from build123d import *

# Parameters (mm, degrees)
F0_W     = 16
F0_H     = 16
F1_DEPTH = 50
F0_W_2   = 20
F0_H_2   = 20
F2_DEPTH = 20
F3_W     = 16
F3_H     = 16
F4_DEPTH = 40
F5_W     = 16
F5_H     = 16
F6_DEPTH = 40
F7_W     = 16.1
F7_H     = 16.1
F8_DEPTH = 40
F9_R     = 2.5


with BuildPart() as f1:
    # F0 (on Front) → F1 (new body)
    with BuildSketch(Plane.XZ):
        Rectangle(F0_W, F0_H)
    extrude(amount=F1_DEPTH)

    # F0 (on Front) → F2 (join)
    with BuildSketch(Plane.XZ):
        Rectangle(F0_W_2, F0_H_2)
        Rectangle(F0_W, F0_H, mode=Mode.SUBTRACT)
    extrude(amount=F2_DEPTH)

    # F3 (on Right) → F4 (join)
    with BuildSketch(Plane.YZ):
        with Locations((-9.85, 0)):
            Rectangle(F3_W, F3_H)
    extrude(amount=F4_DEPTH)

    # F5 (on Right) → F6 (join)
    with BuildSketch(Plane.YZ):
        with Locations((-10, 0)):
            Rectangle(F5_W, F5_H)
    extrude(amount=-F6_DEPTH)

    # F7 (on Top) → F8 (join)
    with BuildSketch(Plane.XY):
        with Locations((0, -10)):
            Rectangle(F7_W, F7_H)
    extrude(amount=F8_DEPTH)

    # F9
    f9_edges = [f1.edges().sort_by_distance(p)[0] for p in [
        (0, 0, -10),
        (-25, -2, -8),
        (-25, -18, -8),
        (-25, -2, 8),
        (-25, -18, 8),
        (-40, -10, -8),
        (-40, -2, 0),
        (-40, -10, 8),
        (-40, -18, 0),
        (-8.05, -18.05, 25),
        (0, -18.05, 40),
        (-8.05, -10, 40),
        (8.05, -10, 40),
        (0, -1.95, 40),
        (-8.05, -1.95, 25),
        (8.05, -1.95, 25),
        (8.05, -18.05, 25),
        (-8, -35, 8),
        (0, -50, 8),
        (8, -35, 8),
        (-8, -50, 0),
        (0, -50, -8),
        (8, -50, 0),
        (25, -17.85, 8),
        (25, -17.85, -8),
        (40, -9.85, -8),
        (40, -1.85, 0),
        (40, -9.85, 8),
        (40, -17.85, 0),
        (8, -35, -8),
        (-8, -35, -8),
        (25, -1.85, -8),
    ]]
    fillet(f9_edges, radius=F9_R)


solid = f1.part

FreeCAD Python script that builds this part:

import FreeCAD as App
import Part
import Sketcher
from FreeCAD import Vector


def edges_at(feature, points):
    """Names of the edges that pass closest to the given points."""
    edges = feature.Shape.Edges
    near = lambda p: min(range(len(edges)), key=lambda i: edges[i].distToShape(Part.Vertex(*p))[0])
    return sorted({f"Edge{near(p) + 1}" for p in points})

doc = App.newDocument("Part")
body = doc.addObject("PartDesign::Body", "Body")

# Sketch on XZ plane
sketch1 = doc.addObject("Sketcher::SketchObject", "Sketch")
body.addObject(sketch1)
sketch1.AttachmentSupport = (doc.XZ_Plane, [""])
sketch1.MapMode = "FlatFace"
sketch1.addGeometry(Part.LineSegment(Vector(-8, 8, 0), Vector(-8, -8, 0)), False)
sketch1.addGeometry(Part.LineSegment(Vector(-8, -8, 0), Vector(8, -8, 0)), False)
sketch1.addGeometry(Part.LineSegment(Vector(8, -8, 0), Vector(8, 8, 0)), False)
sketch1.addGeometry(Part.LineSegment(Vector(8, 8, 0), Vector(-8, 8, 0)), False)
sketch1.addConstraint(Sketcher.Constraint("Coincident", 0, 2, 1, 1))
sketch1.addConstraint(Sketcher.Constraint("Coincident", 1, 2, 2, 1))
sketch1.addConstraint(Sketcher.Constraint("Coincident", 2, 2, 3, 1))
sketch1.addConstraint(Sketcher.Constraint("Coincident", 3, 2, 0, 1))
sketch1.addConstraint(Sketcher.Constraint("Vertical", 0))
sketch1.addConstraint(Sketcher.Constraint("Horizontal", 1))
sketch1.addConstraint(Sketcher.Constraint("Vertical", 2))
sketch1.addConstraint(Sketcher.Constraint("Horizontal", 3))
sketch1.addConstraint(Sketcher.Constraint("Symmetric", 0, 2, 2, 2, -1, 1))
sketch1.addConstraint(Sketcher.Constraint("Equal", 3, 0))
sketch1.addConstraint(Sketcher.Constraint("DistanceX", 1, 1, 1, 2, 16.0))
pad1 = doc.addObject("PartDesign::Pad", "Pad")
body.addObject(pad1)
pad1.Profile = sketch1
pad1.Length = 50

# Sketch on XZ plane
sketch2 = doc.addObject("Sketcher::SketchObject", "Sketch001")
body.addObject(sketch2)
sketch2.AttachmentSupport = (doc.XZ_Plane, [""])
sketch2.MapMode = "FlatFace"
sketch2.addGeometry(Part.LineSegment(Vector(-10, 10, 0), Vector(-10, -10, 0)), False)
sketch2.addGeometry(Part.LineSegment(Vector(-10, -10, 0), Vector(10, -10, 0)), False)
sketch2.addGeometry(Part.LineSegment(Vector(10, -10, 0), Vector(10, 10, 0)), False)
sketch2.addGeometry(Part.LineSegment(Vector(10, 10, 0), Vector(-10, 10, 0)), False)
sketch2.addGeometry(Part.LineSegment(Vector(8, -8, 0), Vector(-8, -8, 0)), False)
sketch2.addGeometry(Part.LineSegment(Vector(-8, -8, 0), Vector(-8, 8, 0)), False)
sketch2.addGeometry(Part.LineSegment(Vector(-8, 8, 0), Vector(8, 8, 0)), False)
sketch2.addGeometry(Part.LineSegment(Vector(8, 8, 0), Vector(8, -8, 0)), False)
sketch2.addConstraint(Sketcher.Constraint("Coincident", 0, 2, 1, 1))
sketch2.addConstraint(Sketcher.Constraint("Coincident", 1, 2, 2, 1))
sketch2.addConstraint(Sketcher.Constraint("Coincident", 2, 2, 3, 1))
sketch2.addConstraint(Sketcher.Constraint("Coincident", 3, 2, 0, 1))
sketch2.addConstraint(Sketcher.Constraint("Coincident", 4, 2, 5, 1))
sketch2.addConstraint(Sketcher.Constraint("Coincident", 5, 2, 6, 1))
sketch2.addConstraint(Sketcher.Constraint("Coincident", 6, 2, 7, 1))
sketch2.addConstraint(Sketcher.Constraint("Coincident", 7, 2, 4, 1))
sketch2.addConstraint(Sketcher.Constraint("Vertical", 0))
sketch2.addConstraint(Sketcher.Constraint("Horizontal", 1))
sketch2.addConstraint(Sketcher.Constraint("Vertical", 2))
sketch2.addConstraint(Sketcher.Constraint("Horizontal", 3))
sketch2.addConstraint(Sketcher.Constraint("Horizontal", 4))
sketch2.addConstraint(Sketcher.Constraint("Vertical", 5))
sketch2.addConstraint(Sketcher.Constraint("Horizontal", 6))
sketch2.addConstraint(Sketcher.Constraint("Vertical", 7))
sketch2.addConstraint(Sketcher.Constraint("Symmetric", 0, 2, 2, 2, -1, 1))
sketch2.addConstraint(Sketcher.Constraint("Symmetric", 4, 2, 6, 2, -1, 1))
sketch2.addConstraint(Sketcher.Constraint("Equal", 3, 0))
sketch2.addConstraint(Sketcher.Constraint("Equal", 6, 5))
sketch2.addConstraint(Sketcher.Constraint("DistanceX", 1, 1, 1, 2, 20.0))
sketch2.addConstraint(Sketcher.Constraint("DistanceX", 4, 2, 4, 1, 16.0))
pad2 = doc.addObject("PartDesign::Pad", "Pad001")
body.addObject(pad2)
pad2.Profile = sketch2
pad2.Length = 20

# Sketch on YZ plane
sketch3 = doc.addObject("Sketcher::SketchObject", "Sketch002")
body.addObject(sketch3)
sketch3.AttachmentSupport = (doc.YZ_Plane, [""])
sketch3.MapMode = "FlatFace"
sketch3.addGeometry(Part.LineSegment(Vector(-17.85, 8, 0), Vector(-17.85, -8, 0)), False)
sketch3.addGeometry(Part.LineSegment(Vector(-17.85, -8, 0), Vector(-1.85, -8, 0)), False)
sketch3.addGeometry(Part.LineSegment(Vector(-1.85, -8, 0), Vector(-1.85, 8, 0)), False)
sketch3.addGeometry(Part.LineSegment(Vector(-1.85, 8, 0), Vector(-17.85, 8, 0)), False)
sketch3.addConstraint(Sketcher.Constraint("Coincident", 0, 2, 1, 1))
sketch3.addConstraint(Sketcher.Constraint("Coincident", 1, 2, 2, 1))
sketch3.addConstraint(Sketcher.Constraint("Coincident", 2, 2, 3, 1))
sketch3.addConstraint(Sketcher.Constraint("Coincident", 3, 2, 0, 1))
sketch3.addConstraint(Sketcher.Constraint("Vertical", 0))
sketch3.addConstraint(Sketcher.Constraint("Horizontal", 1))
sketch3.addConstraint(Sketcher.Constraint("Vertical", 2))
sketch3.addConstraint(Sketcher.Constraint("Horizontal", 3))
sketch3.addConstraint(Sketcher.Constraint("Equal", 3, 0))
sketch3.addConstraint(Sketcher.Constraint("DistanceX", 1, 1, 1, 2, 16.0))
sketch3.addConstraint(Sketcher.Constraint("DistanceY", 0, 2, -1, 1, 8.0))
sketch3.addConstraint(Sketcher.Constraint("DistanceX", 0, 2, -1, 1, 17.85))
pad3 = doc.addObject("PartDesign::Pad", "Pad002")
body.addObject(pad3)
pad3.Profile = sketch3
pad3.Length = 40

# Sketch on YZ plane
sketch4 = doc.addObject("Sketcher::SketchObject", "Sketch003")
body.addObject(sketch4)
sketch4.AttachmentSupport = (doc.YZ_Plane, [""])
sketch4.MapMode = "FlatFace"
sketch4.addGeometry(Part.LineSegment(Vector(-18, 8, 0), Vector(-18, -8, 0)), False)
sketch4.addGeometry(Part.LineSegment(Vector(-18, -8, 0), Vector(-2, -8, 0)), False)
sketch4.addGeometry(Part.LineSegment(Vector(-2, -8, 0), Vector(-2, 8, 0)), False)
sketch4.addGeometry(Part.LineSegment(Vector(-2, 8, 0), Vector(-18, 8, 0)), False)
sketch4.addConstraint(Sketcher.Constraint("Coincident", 0, 2, 1, 1))
sketch4.addConstraint(Sketcher.Constraint("Coincident", 1, 2, 2, 1))
sketch4.addConstraint(Sketcher.Constraint("Coincident", 2, 2, 3, 1))
sketch4.addConstraint(Sketcher.Constraint("Coincident", 3, 2, 0, 1))
sketch4.addConstraint(Sketcher.Constraint("Vertical", 0))
sketch4.addConstraint(Sketcher.Constraint("Horizontal", 1))
sketch4.addConstraint(Sketcher.Constraint("Vertical", 2))
sketch4.addConstraint(Sketcher.Constraint("Horizontal", 3))
sketch4.addConstraint(Sketcher.Constraint("Equal", 3, 0))
sketch4.addConstraint(Sketcher.Constraint("DistanceX", 1, 1, 1, 2, 16.0))
sketch4.addConstraint(Sketcher.Constraint("DistanceX", 0, 2, -1, 1, 18.0))
sketch4.addConstraint(Sketcher.Constraint("DistanceY", 0, 2, -1, 1, 8.0))
pad4 = doc.addObject("PartDesign::Pad", "Pad003")
body.addObject(pad4)
pad4.Profile = sketch4
pad4.Length = 40
pad4.Reversed = True

# Sketch on XY plane
sketch5 = doc.addObject("Sketcher::SketchObject", "Sketch004")
body.addObject(sketch5)
sketch5.AttachmentSupport = (doc.XY_Plane, [""])
sketch5.MapMode = "FlatFace"
sketch5.addGeometry(Part.LineSegment(Vector(-8.05, -1.95, 0), Vector(-8.05, -18.05, 0)), False)
sketch5.addGeometry(Part.LineSegment(Vector(-8.05, -18.05, 0), Vector(8.05, -18.05, 0)), False)
sketch5.addGeometry(Part.LineSegment(Vector(8.05, -18.05, 0), Vector(8.05, -1.95, 0)), False)
sketch5.addGeometry(Part.LineSegment(Vector(8.05, -1.95, 0), Vector(-8.05, -1.95, 0)), False)
sketch5.addConstraint(Sketcher.Constraint("Coincident", 0, 2, 1, 1))
sketch5.addConstraint(Sketcher.Constraint("Coincident", 1, 2, 2, 1))
sketch5.addConstraint(Sketcher.Constraint("Coincident", 2, 2, 3, 1))
sketch5.addConstraint(Sketcher.Constraint("Coincident", 3, 2, 0, 1))
sketch5.addConstraint(Sketcher.Constraint("Vertical", 0))
sketch5.addConstraint(Sketcher.Constraint("Horizontal", 1))
sketch5.addConstraint(Sketcher.Constraint("Vertical", 2))
sketch5.addConstraint(Sketcher.Constraint("Horizontal", 3))
sketch5.addConstraint(Sketcher.Constraint("Equal", 3, 0))
sketch5.addConstraint(Sketcher.Constraint("DistanceX", 1, 1, 1, 2, 16.1))
sketch5.addConstraint(Sketcher.Constraint("DistanceX", 0, 2, -1, 1, 8.05))
sketch5.addConstraint(Sketcher.Constraint("DistanceY", 0, 2, -1, 1, 18.05))
pad5 = doc.addObject("PartDesign::Pad", "Pad004")
body.addObject(pad5)
pad5.Profile = sketch5
pad5.Length = 40
doc.recompute()

fillet = doc.addObject("PartDesign::Fillet", "Fillet")
body.addObject(fillet)
fillet.Base = (pad5, edges_at(pad5, [
    (0, 0, -10),
    (-25, -2, -8),
    (-25, -18, -8),
    (-25, -2, 8),
    (-25, -18, 8),
    (-40, -10, -8),
    (-40, -2, 0),
    (-40, -10, 8),
    (-40, -18, 0),
    (-8.05, -18.05, 25),
    (0, -18.05, 40),
    (-8.05, -10, 40),
    (8.05, -10, 40),
    (0, -1.95, 40),
    (-8.05, -1.95, 25),
    (8.05, -1.95, 25),
    (8.05, -18.05, 25),
    (-8, -35, 8),
    (0, -50, 8),
    (8, -35, 8),
    (-8, -50, 0),
    (0, -50, -8),
    (8, -50, 0),
    (25, -17.85, 8),
    (25, -17.85, -8),
    (40, -9.85, -8),
    (40, -1.85, 0),
    (40, -9.85, 8),
    (40, -17.85, 0),
    (8, -35, -8),
    (-8, -35, -8),
    (25, -1.85, -8),
]))
fillet.Radius = 2.5

doc.recompute()
